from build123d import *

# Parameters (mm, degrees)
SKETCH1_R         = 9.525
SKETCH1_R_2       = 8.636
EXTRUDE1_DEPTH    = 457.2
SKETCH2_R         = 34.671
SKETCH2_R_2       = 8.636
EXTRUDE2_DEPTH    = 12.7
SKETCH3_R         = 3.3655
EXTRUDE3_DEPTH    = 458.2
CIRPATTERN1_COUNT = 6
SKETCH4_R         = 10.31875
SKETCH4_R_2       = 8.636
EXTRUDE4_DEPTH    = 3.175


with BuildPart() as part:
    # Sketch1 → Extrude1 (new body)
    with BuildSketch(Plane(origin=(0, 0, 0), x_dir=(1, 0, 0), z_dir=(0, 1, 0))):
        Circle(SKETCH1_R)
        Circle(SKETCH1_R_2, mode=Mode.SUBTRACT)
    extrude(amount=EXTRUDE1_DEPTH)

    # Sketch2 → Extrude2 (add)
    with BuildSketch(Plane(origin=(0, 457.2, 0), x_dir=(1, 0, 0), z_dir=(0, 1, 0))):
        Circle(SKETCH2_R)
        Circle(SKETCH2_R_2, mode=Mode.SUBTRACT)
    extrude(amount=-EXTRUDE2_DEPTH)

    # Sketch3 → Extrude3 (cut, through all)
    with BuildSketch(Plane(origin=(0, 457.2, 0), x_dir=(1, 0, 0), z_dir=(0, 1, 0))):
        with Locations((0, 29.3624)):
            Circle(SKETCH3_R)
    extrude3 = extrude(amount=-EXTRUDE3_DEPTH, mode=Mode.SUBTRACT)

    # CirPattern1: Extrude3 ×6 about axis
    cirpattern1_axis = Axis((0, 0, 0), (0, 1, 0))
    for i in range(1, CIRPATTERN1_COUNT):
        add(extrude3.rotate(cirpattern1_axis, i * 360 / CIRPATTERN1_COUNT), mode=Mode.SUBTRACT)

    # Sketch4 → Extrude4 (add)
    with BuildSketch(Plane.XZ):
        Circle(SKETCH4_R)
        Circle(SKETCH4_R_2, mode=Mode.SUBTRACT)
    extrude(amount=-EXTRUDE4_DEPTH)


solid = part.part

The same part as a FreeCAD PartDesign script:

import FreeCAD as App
import Part
import Sketcher

V = App.Vector
Q = App.Units.Quantity

doc = App.newDocument("Part")
body = doc.addObject("PartDesign::Body", "Body")

# Sketch on XZ plane
sketch1 = body.newObject("Sketcher::SketchObject", "Sketch")
sketch1.AttachmentSupport = (doc.getObject("XZ_Plane"), [""])
sketch1.MapMode = "FlatFace"
sketch1.addGeometry([
    Part.Circle(V(0, 0, 0), V(0, 0, 1), 9.525),
    Part.Circle(V(0, 0, 0), V(0, 0, 1), 8.636),
], False)
sketch1.addConstraint([
    Sketcher.Constraint("Coincident", 0, 3, -1, 1),
    Sketcher.Constraint("Coincident", 1, 3, -1, 1),
    Sketcher.Constraint("Diameter", 0, Q("0.75 in")),
    Sketcher.Constraint("Diameter", 1, Q("0.68 in")),
])
pad1 = body.newObject("PartDesign::Pad", "Pad")
pad1.Profile = sketch1
pad1.Length = Q("18 in")
pad1.Reversed = True

# Sketch on XZ plane
sketch2 = body.newObject("Sketcher::SketchObject", "Sketch001")
sketch2.AttachmentSupport = (doc.getObject("XZ_Plane"), [""])
sketch2.MapMode = "FlatFace"
sketch2.AttachmentOffset = App.Placement(V(0, 0, -18 * 25.4), App.Rotation())
sketch2.addGeometry([
    Part.Circle(V(0, 0, 0), V(0, 0, 1), 34.671),
    Part.Circle(V(0, 0, 0), V(0, 0, 1), 8.636),
], False)
sketch2.addConstraint([
    Sketcher.Constraint("Coincident", 0, 3, -1, 1),
    Sketcher.Constraint("Coincident", 1, 3, -1, 1),
    Sketcher.Constraint("Diameter", 0, Q("2.73 in")),
    Sketcher.Constraint("Diameter", 1, Q("0.68 in")),
])
pad2 = body.newObject("PartDesign::Pad", "Pad001")
pad2.Profile = sketch2
pad2.Length = Q("0.5 in")

# Sketch on XZ plane
sketch3 = body.newObject("Sketcher::SketchObject", "Sketch002")
sketch3.AttachmentSupport = (doc.getObject("XZ_Plane"), [""])
sketch3.MapMode = "FlatFace"
sketch3.AttachmentOffset = App.Placement(V(0, 0, -18 * 25.4), App.Rotation())
sketch3.addGeometry(Part.Circle(V(0, -29.3624, 0), V(0, 0, 1), 3.3655), False)
sketch3.addConstraint([
    Sketcher.Constraint("PointOnObject", 0, 3, -2),
    Sketcher.Constraint("Diameter", 0, Q("0.265 in")),
    Sketcher.Constraint("DistanceY", 0, 3, -1, 1, Q("1.156 in")),
])
pocket1 = body.newObject("PartDesign::Pocket", "Pocket")
pocket1.Profile = sketch3
pocket1.Type = "ThroughAll"
pocket1.Reversed = True
doc.recompute()

polarpattern = body.newObject("PartDesign::PolarPattern", "PolarPattern")
polarpattern.Originals = [pocket1]
polarpattern.Axis = (doc.getObject("Y_Axis"), [""])
polarpattern.Angle = 360
polarpattern.Occurrences = 6
body.Tip = polarpattern

# Sketch on XZ plane
sketch4 = body.newObject("Sketcher::SketchObject", "Sketch003")
sketch4.AttachmentSupport = (doc.getObject("XZ_Plane"), [""])
sketch4.MapMode = "FlatFace"
sketch4.addGeometry([
    Part.Circle(V(0, 0, 0), V(0, 0, 1), 10.31875),
    Part.Circle(V(0, 0, 0), V(0, 0, 1), 8.636),
], False)
sketch4.addConstraint([
    Sketcher.Constraint("Coincident", 0, 3, -1, 1),
    Sketcher.Constraint("Coincident", 1, 3, -1, 1),
    Sketcher.Constraint("Diameter", 1, Q("0.68 in")),
    Sketcher.Constraint("Diameter", 0, Q("0.8125 in")),
])
pad3 = body.newObject("PartDesign::Pad", "Pad002")
pad3.Profile = sketch4
pad3.Length = Q("0.125 in")
pad3.Reversed = True

doc.recompute()
